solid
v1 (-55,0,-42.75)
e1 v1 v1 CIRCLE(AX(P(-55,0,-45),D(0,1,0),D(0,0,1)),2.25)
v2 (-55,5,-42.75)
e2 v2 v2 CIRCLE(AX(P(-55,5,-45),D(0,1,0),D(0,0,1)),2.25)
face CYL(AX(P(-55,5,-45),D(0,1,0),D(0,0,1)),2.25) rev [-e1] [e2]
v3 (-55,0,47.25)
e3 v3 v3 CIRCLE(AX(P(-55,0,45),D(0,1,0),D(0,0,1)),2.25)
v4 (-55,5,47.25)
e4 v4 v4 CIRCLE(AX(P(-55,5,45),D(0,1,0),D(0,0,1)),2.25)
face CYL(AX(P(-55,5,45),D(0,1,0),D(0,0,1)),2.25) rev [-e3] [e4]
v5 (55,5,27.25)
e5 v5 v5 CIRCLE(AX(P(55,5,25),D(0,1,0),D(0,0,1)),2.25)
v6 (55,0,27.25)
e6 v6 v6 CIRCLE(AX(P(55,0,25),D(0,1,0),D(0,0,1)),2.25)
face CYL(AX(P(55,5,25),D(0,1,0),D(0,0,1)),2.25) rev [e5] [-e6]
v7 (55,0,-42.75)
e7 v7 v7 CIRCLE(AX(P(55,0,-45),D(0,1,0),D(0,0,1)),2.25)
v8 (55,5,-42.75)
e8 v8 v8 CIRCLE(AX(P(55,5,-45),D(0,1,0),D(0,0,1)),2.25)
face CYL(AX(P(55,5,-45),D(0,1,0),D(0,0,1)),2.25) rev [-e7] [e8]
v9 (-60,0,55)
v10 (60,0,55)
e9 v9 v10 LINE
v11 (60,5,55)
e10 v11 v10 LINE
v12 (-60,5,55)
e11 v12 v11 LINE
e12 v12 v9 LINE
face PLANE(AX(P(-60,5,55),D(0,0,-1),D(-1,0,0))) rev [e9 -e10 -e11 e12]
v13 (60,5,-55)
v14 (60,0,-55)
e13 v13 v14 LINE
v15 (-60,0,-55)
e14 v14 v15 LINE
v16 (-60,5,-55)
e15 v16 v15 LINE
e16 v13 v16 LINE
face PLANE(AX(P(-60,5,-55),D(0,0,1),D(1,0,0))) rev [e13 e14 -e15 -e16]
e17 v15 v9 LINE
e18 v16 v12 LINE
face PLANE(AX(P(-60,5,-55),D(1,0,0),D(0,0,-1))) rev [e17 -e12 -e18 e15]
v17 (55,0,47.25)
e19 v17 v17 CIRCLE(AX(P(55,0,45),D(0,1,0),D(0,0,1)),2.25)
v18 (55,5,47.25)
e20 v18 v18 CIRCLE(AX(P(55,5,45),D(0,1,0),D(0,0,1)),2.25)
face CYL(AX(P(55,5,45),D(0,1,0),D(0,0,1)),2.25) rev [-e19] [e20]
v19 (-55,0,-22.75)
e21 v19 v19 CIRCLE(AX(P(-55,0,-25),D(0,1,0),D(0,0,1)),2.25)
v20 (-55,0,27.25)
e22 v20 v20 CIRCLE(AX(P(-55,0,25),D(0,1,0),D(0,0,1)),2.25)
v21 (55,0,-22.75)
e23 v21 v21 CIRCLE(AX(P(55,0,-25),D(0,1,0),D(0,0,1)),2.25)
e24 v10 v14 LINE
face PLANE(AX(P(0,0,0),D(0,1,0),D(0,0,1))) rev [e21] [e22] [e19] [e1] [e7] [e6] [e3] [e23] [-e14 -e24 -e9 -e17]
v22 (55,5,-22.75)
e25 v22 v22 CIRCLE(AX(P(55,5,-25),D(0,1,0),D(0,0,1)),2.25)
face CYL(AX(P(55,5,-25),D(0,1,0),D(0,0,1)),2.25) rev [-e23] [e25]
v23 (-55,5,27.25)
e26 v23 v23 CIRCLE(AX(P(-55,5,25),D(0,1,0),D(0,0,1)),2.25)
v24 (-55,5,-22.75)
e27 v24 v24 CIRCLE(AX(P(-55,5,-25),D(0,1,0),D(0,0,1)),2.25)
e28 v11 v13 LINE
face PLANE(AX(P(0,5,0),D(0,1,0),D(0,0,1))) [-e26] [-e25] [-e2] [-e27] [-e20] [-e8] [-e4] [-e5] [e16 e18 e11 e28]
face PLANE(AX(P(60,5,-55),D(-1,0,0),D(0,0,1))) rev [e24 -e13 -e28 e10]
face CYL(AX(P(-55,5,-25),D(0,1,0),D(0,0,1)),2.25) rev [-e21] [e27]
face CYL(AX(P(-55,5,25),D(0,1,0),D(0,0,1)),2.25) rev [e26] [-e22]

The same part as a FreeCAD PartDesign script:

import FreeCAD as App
import Part
import Sketcher


def add_polygon(sketch, points):
    """Adds a closed chain of lines whose ends are joined by coincident constraints."""
    first, n = sketch.GeometryCount, len(points)
    for a, b in zip(points, points[1:] + points[:1]):
        sketch.addGeometry(Part.LineSegment(App.Vector(*a, 0), App.Vector(*b, 0)), False)
    for i in range(n):
        sketch.addConstraint(Sketcher.Constraint("Coincident", first + i, 2, first + (i + 1) % n, 1))

doc = App.newDocument("Part")
params = doc.addObject("Spreadsheet::Sheet", "Params")
for row, (alias, value) in enumerate([
    ("sketch1_width", "120 mm"),
    ("sketch1_height", "110 mm"),
    ("pad1_length", "5 mm"),
    ("sketch2_diameter", "4.5 mm"),
    ("hole_diameter", "4.5 mm"),
], start=1):
    params.set(f"A{row}", alias)
    params.set(f"B{row}", "=" + value)
    params.setAlias(f"B{row}", alias)

body = doc.addObject("PartDesign::Body", "Body")

sketch1 = body.newObject("Sketcher::SketchObject", "Sketch")
sketch1.AttachmentSupport = (doc.getObject("XZ_Plane"), [""])
sketch1.MapMode = "FlatFace"
add_polygon(sketch1, [(-60, -55), (-60, 55), (60, 55), (60, -55)])
sketch1.addConstraint(Sketcher.Constraint("Vertical", 0))
sketch1.addConstraint(Sketcher.Constraint("Horizontal", 1))
sketch1.addConstraint(Sketcher.Constraint("Vertical", 2))
sketch1.addConstraint(Sketcher.Constraint("Horizontal", 3))
sketch1.addConstraint(Sketcher.Constraint("Symmetric", 0, 2, 2, 2, -1, 1))
sketch1.addConstraint(Sketcher.Constraint("DistanceX", 1, 1, 1, 2, 120.0))
sketch1.addConstraint(Sketcher.Constraint("DistanceY", 0, 1, 0, 2, 110.0))
sketch1.setExpression("Constraints[9]", "Params.sketch1_width")
sketch1.setExpression("Constraints[10]", "Params.sketch1_height")
pad1 = body.newObject("PartDesign::Pad", "Pad")
pad1.Profile = sketch1
pad1.setExpression("Length", "Params.pad1_length")
pad1.Reversed = True

sketch2 = body.newObject("Sketcher::SketchObject", "Sketch001")
sketch2.AttachmentSupport = (doc.getObject("XZ_Plane"), [""])
sketch2.MapMode = "FlatFace"
sketch2.AttachmentOffset = App.Placement(App.Vector(0, 0, -5), App.Rotation())
sketch2.addGeometry(Part.Circle(App.Vector(-55, -45, 0), App.Vector(0, 0, 1), 2.2), False)
sketch2.addGeometry(Part.Circle(App.Vector(-55, -25, 0), App.Vector(0, 0, 1), 2.2), False)
sketch2.addGeometry(Part.Circle(App.Vector(-55, 25, 0), App.Vector(0, 0, 1), 2.2), False)
sketch2.addGeometry(Part.Circle(App.Vector(-55, 45, 0), App.Vector(0, 0, 1), 2.2), False)
sketch2.addGeometry(Part.Circle(App.Vector(55, 45, 0), App.Vector(0, 0, 1), 2.2), False)
sketch2.addGeometry(Part.Circle(App.Vector(55, 25, 0), App.Vector(0, 0, 1), 2.2), False)
sketch2.addGeometry(Part.Circle(App.Vector(55, -25, 0), App.Vector(0, 0, 1), 2.2), False)
sketch2.addGeometry(Part.Circle(App.Vector(55, -45, 0), App.Vector(0, 0, 1), 2.2), False)
sketch2.addConstraint(Sketcher.Constraint("Equal", 0, 1))
sketch2.addConstraint(Sketcher.Constraint("Equal", 1, 2))
sketch2.addConstraint(Sketcher.Constraint("Equal", 2, 3))
sketch2.addConstraint(Sketcher.Constraint("Equal", 3, 4))
sketch2.addConstraint(Sketcher.Constraint("Equal", 4, 5))
sketch2.addConstraint(Sketcher.Constraint("Equal", 5, 6))
sketch2.addConstraint(Sketcher.Constraint("Equal", 6, 7))
sketch2.addConstraint(Sketcher.Constraint("Symmetric", 0, 3, 4, 3, -1, 1))
sketch2.addConstraint(Sketcher.Constraint("Symmetric", 1, 3, 5, 3, -1, 1))
sketch2.addConstraint(Sketcher.Constraint("Symmetric", 2, 3, 6, 3, -1, 1))
sketch2.addConstraint(Sketcher.Constraint("Symmetric", 3, 3, 7, 3, -1, 1))
sketch2.addConstraint(Sketcher.Constraint("Symmetric", 3, 3, 4, 3, -2))
sketch2.addConstraint(Sketcher.Constraint("Symmetric", 2, 3, 5, 3, -2))
sketch2.addConstraint(Sketcher.Constraint("Vertical", 0, 3, 1, 3))
sketch2.addConstraint(Sketcher.Constraint("Diameter", 0, 4.5))
sketch2.addConstraint(Sketcher.Constraint("DistanceX", 0, 3, -1, 1, 55.0))
sketch2.addConstraint(Sketcher.Constraint("DistanceY", 0, 3, -1, 1, 45.0))
sketch2.addConstraint(Sketcher.Constraint("DistanceY", 1, 3, -1, 1, 25.0))
sketch2.setExpression("Constraints[14]", "Params.sketch2_diameter")
doc.recompute()
hole = body.newObject("PartDesign::Hole", "Hole")
hole.Profile = sketch2
hole.ThreadType = "None"
hole.setExpression("Diameter", "Params.hole_diameter")
hole.DepthType = "ThroughAll"
hole.Reversed = True

doc.recompute()
